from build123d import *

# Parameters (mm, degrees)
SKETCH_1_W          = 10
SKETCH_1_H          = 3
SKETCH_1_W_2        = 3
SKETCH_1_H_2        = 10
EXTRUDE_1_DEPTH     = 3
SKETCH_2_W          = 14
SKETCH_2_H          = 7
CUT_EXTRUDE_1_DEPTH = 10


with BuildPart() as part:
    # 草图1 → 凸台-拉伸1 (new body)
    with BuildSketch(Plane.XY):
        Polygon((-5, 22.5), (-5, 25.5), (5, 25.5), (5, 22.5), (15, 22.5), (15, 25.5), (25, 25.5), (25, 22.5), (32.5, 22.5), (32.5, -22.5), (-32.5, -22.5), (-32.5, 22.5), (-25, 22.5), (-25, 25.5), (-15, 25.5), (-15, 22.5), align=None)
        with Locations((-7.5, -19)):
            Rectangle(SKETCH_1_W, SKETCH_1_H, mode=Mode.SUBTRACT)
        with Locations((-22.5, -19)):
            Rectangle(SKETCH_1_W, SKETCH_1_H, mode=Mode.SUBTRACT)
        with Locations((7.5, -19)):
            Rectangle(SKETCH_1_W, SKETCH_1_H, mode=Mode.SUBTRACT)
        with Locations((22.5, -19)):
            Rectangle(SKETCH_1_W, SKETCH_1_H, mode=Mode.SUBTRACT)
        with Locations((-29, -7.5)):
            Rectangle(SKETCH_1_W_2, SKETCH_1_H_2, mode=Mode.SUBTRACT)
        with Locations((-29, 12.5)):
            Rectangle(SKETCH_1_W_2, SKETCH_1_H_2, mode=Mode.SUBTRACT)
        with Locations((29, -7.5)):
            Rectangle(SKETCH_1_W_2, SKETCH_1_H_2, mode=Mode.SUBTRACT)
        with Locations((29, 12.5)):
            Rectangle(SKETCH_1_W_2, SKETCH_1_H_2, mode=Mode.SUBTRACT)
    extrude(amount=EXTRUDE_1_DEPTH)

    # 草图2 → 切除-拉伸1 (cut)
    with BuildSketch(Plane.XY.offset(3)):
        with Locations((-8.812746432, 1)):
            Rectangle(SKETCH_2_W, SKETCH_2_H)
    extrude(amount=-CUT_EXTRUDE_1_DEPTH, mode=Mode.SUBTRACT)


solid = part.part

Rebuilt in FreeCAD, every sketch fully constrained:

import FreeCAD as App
import Part
import Sketcher
Q = App.Units.Quantity

doc = App.newDocument("Part")
body = doc.addObject("PartDesign::Body", "Body")

# Sketch on XY plane
sketch1 = body.newObject("Sketcher::SketchObject", "Sketch")
sketch1.AttachmentSupport = (doc.getObject("XY_Plane"), [""])
sketch1.MapMode = "FlatFace"
sketch1.addGeometry([
    Part.LineSegment(App.Vector(-5, 25.5, 0), App.Vector(-5, 22.5, 0)),  # 0
    Part.LineSegment(App.Vector(-5, 22.5, 0), App.Vector(-15, 22.5, 0)),  # 1
    Part.LineSegment(App.Vector(-15, 22.5, 0), App.Vector(-15, 25.5, 0)),  # 2
    Part.LineSegment(App.Vector(-15, 25.5, 0), App.Vector(-25, 25.5, 0)),  # 3
    Part.LineSegment(App.Vector(-25, 25.5, 0), App.Vector(-25, 22.5, 0)),  # 4
    Part.LineSegment(App.Vector(-25, 22.5, 0), App.Vector(-32.5, 22.5, 0)),  # 5
    Part.LineSegment(App.Vector(-32.5, 22.5, 0), App.Vector(-32.5, -22.5, 0)),  # 6
    Part.LineSegment(App.Vector(-32.5, -22.5, 0), App.Vector(32.5, -22.5, 0)),  # 7
    Part.LineSegment(App.Vector(32.5, -22.5, 0), App.Vector(32.5, 22.5, 0)),  # 8
    Part.LineSegment(App.Vector(32.5, 22.5, 0), App.Vector(25, 22.5, 0)),  # 9
    Part.LineSegment(App.Vector(25, 22.5, 0), App.Vector(25, 25.5, 0)),  # 10
    Part.LineSegment(App.Vector(25, 25.5, 0), App.Vector(15, 25.5, 0)),  # 11
    Part.LineSegment(App.Vector(15, 25.5, 0), App.Vector(15, 22.5, 0)),  # 12
    Part.LineSegment(App.Vector(15, 22.5, 0), App.Vector(5, 22.5, 0)),  # 13
    Part.LineSegment(App.Vector(5, 22.5, 0), App.Vector(5, 25.5, 0)),  # 14
    Part.LineSegment(App.Vector(5, 25.5, 0), App.Vector(-5, 25.5, 0)),  # 15
    Part.LineSegment(App.Vector(17.5, -20.5, 0), App.Vector(17.5, -17.5, 0)),  # 16
    Part.LineSegment(App.Vector(17.5, -17.5, 0), App.Vector(27.5, -17.5, 0)),  # 17
    Part.LineSegment(App.Vector(27.5, -17.5, 0), App.Vector(27.5, -20.5, 0)),  # 18
    Part.LineSegment(App.Vector(27.5, -20.5, 0), App.Vector(17.5, -20.5, 0)),  # 19
    Part.LineSegment(App.Vector(2.5, -20.5, 0), App.Vector(2.5, -17.5, 0)),  # 20
    Part.LineSegment(App.Vector(2.5, -17.5, 0), App.Vector(12.5, -17.5, 0)),  # 21
    Part.LineSegment(App.Vector(12.5, -17.5, 0), App.Vector(12.5, -20.5, 0)),  # 22
    Part.LineSegment(App.Vector(12.5, -20.5, 0), App.Vector(2.5, -20.5, 0)),  # 23
    Part.LineSegment(App.Vector(27.5, -12.5, 0), App.Vector(27.5, -2.5, 0)),  # 24
    Part.LineSegment(App.Vector(27.5, -2.5, 0), App.Vector(30.5, -2.5, 0)),  # 25
    Part.LineSegment(App.Vector(30.5, -2.5, 0), App.Vector(30.5, -12.5, 0)),  # 26
    Part.LineSegment(App.Vector(30.5, -12.5, 0), App.Vector(27.5, -12.5, 0)),  # 27
    Part.LineSegment(App.Vector(-12.5, -20.5, 0), App.Vector(-12.5, -17.5, 0)),  # 28
    Part.LineSegment(App.Vector(-12.5, -17.5, 0), App.Vector(-2.5, -17.5, 0)),  # 29
    Part.LineSegment(App.Vector(-2.5, -17.5, 0), App.Vector(-2.5, -20.5, 0)),  # 30
    Part.LineSegment(App.Vector(-2.5, -20.5, 0), App.Vector(-12.5, -20.5, 0)),  # 31
    Part.LineSegment(App.Vector(-27.5, -20.5, 0), App.Vector(-27.5, -17.5, 0)),  # 32
    Part.LineSegment(App.Vector(-27.5, -17.5, 0), App.Vector(-17.5, -17.5, 0)),  # 33
    Part.LineSegment(App.Vector(-17.5, -17.5, 0), App.Vector(-17.5, -20.5, 0)),  # 34
    Part.LineSegment(App.Vector(-17.5, -20.5, 0), App.Vector(-27.5, -20.5, 0)),  # 35
    Part.LineSegment(App.Vector(-30.5, -12.5, 0), App.Vector(-30.5, -2.5, 0)),  # 36
    Part.LineSegment(App.Vector(-30.5, -2.5, 0), App.Vector(-27.5, -2.5, 0)),  # 37
    Part.LineSegment(App.Vector(-27.5, -2.5, 0), App.Vector(-27.5, -12.5, 0)),  # 38
    Part.LineSegment(App.Vector(-27.5, -12.5, 0), App.Vector(-30.5, -12.5, 0)),  # 39
    Part.LineSegment(App.Vector(27.5, 7.5, 0), App.Vector(27.5, 17.5, 0)),  # 40
    Part.LineSegment(App.Vector(27.5, 17.5, 0), App.Vector(30.5, 17.5, 0)),  # 41
    Part.LineSegment(App.Vector(30.5, 17.5, 0), App.Vector(30.5, 7.5, 0)),  # 42
    Part.LineSegment(App.Vector(30.5, 7.5, 0), App.Vector(27.5, 7.5, 0)),  # 43
    Part.LineSegment(App.Vector(-30.5, 7.5, 0), App.Vector(-30.5, 17.5, 0)),  # 44
    Part.LineSegment(App.Vector(-30.5, 17.5, 0), App.Vector(-27.5, 17.5, 0)),  # 45
    Part.LineSegment(App.Vector(-27.5, 17.5, 0), App.Vector(-27.5, 7.5, 0)),  # 46
    Part.LineSegment(App.Vector(-27.5, 7.5, 0), App.Vector(-30.5, 7.5, 0)),  # 47
], False)
sketch1.addConstraint([
    Sketcher.Constraint("Coincident", 0, 2, 1, 1),
    Sketcher.Constraint("Coincident", 1, 2, 2, 1),
    Sketcher.Constraint("Coincident", 2, 2, 3, 1),
    Sketcher.Constraint("Coincident", 3, 2, 4, 1),
    Sketcher.Constraint("Coincident", 4, 2, 5, 1),
    Sketcher.Constraint("Coincident", 5, 2, 6, 1),
    Sketcher.Constraint("Coincident", 6, 2, 7, 1),
    Sketcher.Constraint("Coincident", 7, 2, 8, 1),
    Sketcher.Constraint("Coincident", 8, 2, 9, 1),
    Sketcher.Constraint("Coincident", 9, 2, 10, 1),
    Sketcher.Constraint("Coincident", 10, 2, 11, 1),
    Sketcher.Constraint("Coincident", 11, 2, 12, 1),
    Sketcher.Constraint("Coincident", 12, 2, 13, 1),
    Sketcher.Constraint("Coincident", 13, 2, 14, 1),
    Sketcher.Constraint("Coincident", 14, 2, 15, 1),
    Sketcher.Constraint("Coincident", 15, 2, 0, 1),
    Sketcher.Constraint("Coincident", 16, 2, 17, 1),
    Sketcher.Constraint("Coincident", 17, 2, 18, 1),
    Sketcher.Constraint("Coincident", 18, 2, 19, 1),
    Sketcher.Constraint("Coincident", 19, 2, 16, 1),
    Sketcher.Constraint("Coincident", 20, 2, 21, 1),
    Sketcher.Constraint("Coincident", 21, 2, 22, 1),
    Sketcher.Constraint("Coincident", 22, 2, 23, 1),
    Sketcher.Constraint("Coincident", 23, 2, 20, 1),
    Sketcher.Constraint("Coincident", 24, 2, 25, 1),
    Sketcher.Constraint("Coincident", 25, 2, 26, 1),
    Sketcher.Constraint("Coincident", 26, 2, 27, 1),
    Sketcher.Constraint("Coincident", 27, 2, 24, 1),
    Sketcher.Constraint("Coincident", 28, 2, 29, 1),
    Sketcher.Constraint("Coincident", 29, 2, 30, 1),
    Sketcher.Constraint("Coincident", 30, 2, 31, 1),
    Sketcher.Constraint("Coincident", 31, 2, 28, 1),
    Sketcher.Constraint("Coincident", 32, 2, 33, 1),
    Sketcher.Constraint("Coincident", 33, 2, 34, 1),
    Sketcher.Constraint("Coincident", 34, 2, 35, 1),
    Sketcher.Constraint("Coincident", 35, 2, 32, 1),
    Sketcher.Constraint("Coincident", 36, 2, 37, 1),
    Sketcher.Constraint("Coincident", 37, 2, 38, 1),
    Sketcher.Constraint("Coincident", 38, 2, 39, 1),
    Sketcher.Constraint("Coincident", 39, 2, 36, 1),
    Sketcher.Constraint("Coincident", 40, 2, 41, 1),
    Sketcher.Constraint("Coincident", 41, 2, 42, 1),
    Sketcher.Constraint("Coincident", 42, 2, 43, 1),
    Sketcher.Constraint("Coincident", 43, 2, 40, 1),
    Sketcher.Constraint("Coincident", 44, 2, 45, 1),
    Sketcher.Constraint("Coincident", 45, 2, 46, 1),
    Sketcher.Constraint("Coincident", 46, 2, 47, 1),
    Sketcher.Constraint("Coincident", 47, 2, 44, 1),
    Sketcher.Constraint("Vertical", 0),
    Sketcher.Constraint("Horizontal", 1),
    Sketcher.Constraint("Vertical", 2),
    Sketcher.Constraint("Horizontal", 3),
    Sketcher.Constraint("Vertical", 4),
    Sketcher.Constraint("Horizontal", 5),
    Sketcher.Constraint("Vertical", 6),
    Sketcher.Constraint("Horizontal", 7),
    Sketcher.Constraint("Vertical", 8),
    Sketcher.Constraint("Horizontal", 9),
    Sketcher.Constraint("Vertical", 10),
    Sketcher.Constraint("Horizontal", 11),
    Sketcher.Constraint("Vertical", 12),
    Sketcher.Constraint("Horizontal", 13),
    Sketcher.Constraint("Vertical", 14),
    Sketcher.Constraint("Horizontal", 15),
    Sketcher.Constraint("Vertical", 16),
    Sketcher.Constraint("Horizontal", 17),
    Sketcher.Constraint("Vertical", 18),
    Sketcher.Constraint("Horizontal", 19),
    Sketcher.Constraint("Vertical", 20),
    Sketcher.Constraint("Horizontal", 21),
    Sketcher.Constraint("Vertical", 22),
    Sketcher.Constraint("Horizontal", 23),
    Sketcher.Constraint("Vertical", 24),
    Sketcher.Constraint("Horizontal", 25),
    Sketcher.Constraint("Vertical", 26),
    Sketcher.Constraint("Horizontal", 27),
    Sketcher.Constraint("Vertical", 28),
    Sketcher.Constraint("Horizontal", 29),
    Sketcher.Constraint("Vertical", 30),
    Sketcher.Constraint("Horizontal", 31),
    Sketcher.Constraint("Vertical", 32),
    Sketcher.Constraint("Horizontal", 33),
    Sketcher.Constraint("Vertical", 34),
    Sketcher.Constraint("Horizontal", 35),
    Sketcher.Constraint("Vertical", 36),
    Sketcher.Constraint("Horizontal", 37),
    Sketcher.Constraint("Vertical", 38),
    Sketcher.Constraint("Horizontal", 39),
    Sketcher.Constraint("Vertical", 40),
    Sketcher.Constraint("Horizontal", 41),
    Sketcher.Constraint("Vertical", 42),
    Sketcher.Constraint("Horizontal", 43),
    Sketcher.Constraint("Vertical", 44),
    Sketcher.Constraint("Horizontal", 45),
    Sketcher.Constraint("Vertical", 46),
    Sketcher.Constraint("Horizontal", 47),
    Sketcher.Constraint("Symmetric", 5, 2, 7, 2, -1, 1),
    Sketcher.Constraint("Symmetric", 32, 2, 40, 2, -1, 1),
    Sketcher.Constraint("Symmetric", 17, 2, 45, 2, -1, 1),
    Sketcher.Constraint("Symmetric", 4, 2, 9, 2, -2),
    Sketcher.Constraint("Symmetric", 2, 2, 11, 2, -2),
    Sketcher.Constraint("Symmetric", 0, 2, 13, 2, -2),
    Sketcher.Constraint("Symmetric", 21, 2, 28, 2, -2),
    Sketcher.Constraint("Symmetric", 23, 2, 30, 2, -2),
    Sketcher.Constraint("Symmetric", 17, 2, 32, 2, -2),
    Sketcher.Constraint("Symmetric", 19, 2, 34, 2, -2),
    Sketcher.Constraint("Symmetric", 25, 2, 36, 2, -2),
    Sketcher.Constraint("Symmetric", 27, 2, 38, 2, -2),
    Sketcher.Constraint("Symmetric", 42, 2, 47, 2, -2),
    Sketcher.Constraint("Horizontal", 1, 2, 4, 2),
    Sketcher.Constraint("Horizontal", 11, 2, 14, 2),
    Sketcher.Constraint("Horizontal", 17, 2, 20, 2),
    Sketcher.Constraint("Horizontal", 19, 2, 22, 2),
    Sketcher.Constraint("Vertical", 18, 2, 24, 2),
    Sketcher.Constraint("Vertical", 26, 2, 41, 2),
    Sketcher.Constraint("Equal", 1, 3),
    Sketcher.Constraint("Equal", 13, 15),
    Sketcher.Constraint("Equal", 15, 17),
    Sketcher.Constraint("Equal", 19, 21),
    Sketcher.Constraint("Equal", 47, 0),
    Sketcher.Constraint("Equal", 14, 16),
    Sketcher.Constraint("Equal", 35, 24),
    Sketcher.Constraint("Equal", 38, 40),
    Sketcher.Constraint("DistanceX", 1, 2, 1, 1, Q("10 mm")),
    Sketcher.Constraint("DistanceX", 7, 1, 7, 2, Q("65 mm")),
    Sketcher.Constraint("DistanceX", 25, 1, 25, 2, Q("3 mm")),
    Sketcher.Constraint("DistanceY", 6, 2, 6, 1, Q("45 mm")),
    Sketcher.Constraint("DistanceX", 16, 2, 7, 2, Q("15 mm")),
    Sketcher.Constraint("DistanceY", 7, 2, 16, 2, Q("5 mm")),
    Sketcher.Constraint("DistanceX", 20, 2, 16, 2, Q("15 mm")),
    Sketcher.Constraint("DistanceY", 17, 2, 24, 2, Q("15 mm")),
])
pad1 = body.newObject("PartDesign::Pad", "Pad")
pad1.Profile = sketch1
pad1.Length = 3

# Sketch on XY plane
sketch2 = body.newObject("Sketcher::SketchObject", "Sketch001")
sketch2.AttachmentSupport = (doc.getObject("XY_Plane"), [""])
sketch2.MapMode = "FlatFace"
sketch2.AttachmentOffset = App.Placement(App.Vector(0, 0, 3), App.Rotation())
sketch2.addGeometry([
    Part.LineSegment(App.Vector(-16, 4, 0), App.Vector(-16, -2, 0)),
    Part.LineSegment(App.Vector(-16, -2, 0), App.Vector(-2, -2, 0)),
    Part.LineSegment(App.Vector(-2, -2, 0), App.Vector(-2, 4, 0)),
    Part.LineSegment(App.Vector(-2, 4, 0), App.Vector(-16, 4, 0)),
], False)
sketch2.addConstraint([
    Sketcher.Constraint("Coincident", 0, 2, 1, 1),
    Sketcher.Constraint("Coincident", 1, 2, 2, 1),
    Sketcher.Constraint("Coincident", 2, 2, 3, 1),
    Sketcher.Constraint("Coincident", 3, 2, 0, 1),
    Sketcher.Constraint("Vertical", 0),
    Sketcher.Constraint("Horizontal", 1),
    Sketcher.Constraint("Vertical", 2),
    Sketcher.Constraint("Horizontal", 3),
    Sketcher.Constraint("DistanceX", 1, 1, 1, 2, Q("14 mm")),
    Sketcher.Constraint("DistanceY", 0, 2, 0, 1, Q("7 mm")),
    Sketcher.Constraint("DistanceY", 0, 2, -1, 1, Q("2.5 mm")),
    Sketcher.Constraint("DistanceX", 0, 2, -1, 1, Q("15.812746 mm")),
])
pocket1 = body.newObject("PartDesign::Pocket", "Pocket")
pocket1.Profile = sketch2
pocket1.Length = 10

doc.recompute()
